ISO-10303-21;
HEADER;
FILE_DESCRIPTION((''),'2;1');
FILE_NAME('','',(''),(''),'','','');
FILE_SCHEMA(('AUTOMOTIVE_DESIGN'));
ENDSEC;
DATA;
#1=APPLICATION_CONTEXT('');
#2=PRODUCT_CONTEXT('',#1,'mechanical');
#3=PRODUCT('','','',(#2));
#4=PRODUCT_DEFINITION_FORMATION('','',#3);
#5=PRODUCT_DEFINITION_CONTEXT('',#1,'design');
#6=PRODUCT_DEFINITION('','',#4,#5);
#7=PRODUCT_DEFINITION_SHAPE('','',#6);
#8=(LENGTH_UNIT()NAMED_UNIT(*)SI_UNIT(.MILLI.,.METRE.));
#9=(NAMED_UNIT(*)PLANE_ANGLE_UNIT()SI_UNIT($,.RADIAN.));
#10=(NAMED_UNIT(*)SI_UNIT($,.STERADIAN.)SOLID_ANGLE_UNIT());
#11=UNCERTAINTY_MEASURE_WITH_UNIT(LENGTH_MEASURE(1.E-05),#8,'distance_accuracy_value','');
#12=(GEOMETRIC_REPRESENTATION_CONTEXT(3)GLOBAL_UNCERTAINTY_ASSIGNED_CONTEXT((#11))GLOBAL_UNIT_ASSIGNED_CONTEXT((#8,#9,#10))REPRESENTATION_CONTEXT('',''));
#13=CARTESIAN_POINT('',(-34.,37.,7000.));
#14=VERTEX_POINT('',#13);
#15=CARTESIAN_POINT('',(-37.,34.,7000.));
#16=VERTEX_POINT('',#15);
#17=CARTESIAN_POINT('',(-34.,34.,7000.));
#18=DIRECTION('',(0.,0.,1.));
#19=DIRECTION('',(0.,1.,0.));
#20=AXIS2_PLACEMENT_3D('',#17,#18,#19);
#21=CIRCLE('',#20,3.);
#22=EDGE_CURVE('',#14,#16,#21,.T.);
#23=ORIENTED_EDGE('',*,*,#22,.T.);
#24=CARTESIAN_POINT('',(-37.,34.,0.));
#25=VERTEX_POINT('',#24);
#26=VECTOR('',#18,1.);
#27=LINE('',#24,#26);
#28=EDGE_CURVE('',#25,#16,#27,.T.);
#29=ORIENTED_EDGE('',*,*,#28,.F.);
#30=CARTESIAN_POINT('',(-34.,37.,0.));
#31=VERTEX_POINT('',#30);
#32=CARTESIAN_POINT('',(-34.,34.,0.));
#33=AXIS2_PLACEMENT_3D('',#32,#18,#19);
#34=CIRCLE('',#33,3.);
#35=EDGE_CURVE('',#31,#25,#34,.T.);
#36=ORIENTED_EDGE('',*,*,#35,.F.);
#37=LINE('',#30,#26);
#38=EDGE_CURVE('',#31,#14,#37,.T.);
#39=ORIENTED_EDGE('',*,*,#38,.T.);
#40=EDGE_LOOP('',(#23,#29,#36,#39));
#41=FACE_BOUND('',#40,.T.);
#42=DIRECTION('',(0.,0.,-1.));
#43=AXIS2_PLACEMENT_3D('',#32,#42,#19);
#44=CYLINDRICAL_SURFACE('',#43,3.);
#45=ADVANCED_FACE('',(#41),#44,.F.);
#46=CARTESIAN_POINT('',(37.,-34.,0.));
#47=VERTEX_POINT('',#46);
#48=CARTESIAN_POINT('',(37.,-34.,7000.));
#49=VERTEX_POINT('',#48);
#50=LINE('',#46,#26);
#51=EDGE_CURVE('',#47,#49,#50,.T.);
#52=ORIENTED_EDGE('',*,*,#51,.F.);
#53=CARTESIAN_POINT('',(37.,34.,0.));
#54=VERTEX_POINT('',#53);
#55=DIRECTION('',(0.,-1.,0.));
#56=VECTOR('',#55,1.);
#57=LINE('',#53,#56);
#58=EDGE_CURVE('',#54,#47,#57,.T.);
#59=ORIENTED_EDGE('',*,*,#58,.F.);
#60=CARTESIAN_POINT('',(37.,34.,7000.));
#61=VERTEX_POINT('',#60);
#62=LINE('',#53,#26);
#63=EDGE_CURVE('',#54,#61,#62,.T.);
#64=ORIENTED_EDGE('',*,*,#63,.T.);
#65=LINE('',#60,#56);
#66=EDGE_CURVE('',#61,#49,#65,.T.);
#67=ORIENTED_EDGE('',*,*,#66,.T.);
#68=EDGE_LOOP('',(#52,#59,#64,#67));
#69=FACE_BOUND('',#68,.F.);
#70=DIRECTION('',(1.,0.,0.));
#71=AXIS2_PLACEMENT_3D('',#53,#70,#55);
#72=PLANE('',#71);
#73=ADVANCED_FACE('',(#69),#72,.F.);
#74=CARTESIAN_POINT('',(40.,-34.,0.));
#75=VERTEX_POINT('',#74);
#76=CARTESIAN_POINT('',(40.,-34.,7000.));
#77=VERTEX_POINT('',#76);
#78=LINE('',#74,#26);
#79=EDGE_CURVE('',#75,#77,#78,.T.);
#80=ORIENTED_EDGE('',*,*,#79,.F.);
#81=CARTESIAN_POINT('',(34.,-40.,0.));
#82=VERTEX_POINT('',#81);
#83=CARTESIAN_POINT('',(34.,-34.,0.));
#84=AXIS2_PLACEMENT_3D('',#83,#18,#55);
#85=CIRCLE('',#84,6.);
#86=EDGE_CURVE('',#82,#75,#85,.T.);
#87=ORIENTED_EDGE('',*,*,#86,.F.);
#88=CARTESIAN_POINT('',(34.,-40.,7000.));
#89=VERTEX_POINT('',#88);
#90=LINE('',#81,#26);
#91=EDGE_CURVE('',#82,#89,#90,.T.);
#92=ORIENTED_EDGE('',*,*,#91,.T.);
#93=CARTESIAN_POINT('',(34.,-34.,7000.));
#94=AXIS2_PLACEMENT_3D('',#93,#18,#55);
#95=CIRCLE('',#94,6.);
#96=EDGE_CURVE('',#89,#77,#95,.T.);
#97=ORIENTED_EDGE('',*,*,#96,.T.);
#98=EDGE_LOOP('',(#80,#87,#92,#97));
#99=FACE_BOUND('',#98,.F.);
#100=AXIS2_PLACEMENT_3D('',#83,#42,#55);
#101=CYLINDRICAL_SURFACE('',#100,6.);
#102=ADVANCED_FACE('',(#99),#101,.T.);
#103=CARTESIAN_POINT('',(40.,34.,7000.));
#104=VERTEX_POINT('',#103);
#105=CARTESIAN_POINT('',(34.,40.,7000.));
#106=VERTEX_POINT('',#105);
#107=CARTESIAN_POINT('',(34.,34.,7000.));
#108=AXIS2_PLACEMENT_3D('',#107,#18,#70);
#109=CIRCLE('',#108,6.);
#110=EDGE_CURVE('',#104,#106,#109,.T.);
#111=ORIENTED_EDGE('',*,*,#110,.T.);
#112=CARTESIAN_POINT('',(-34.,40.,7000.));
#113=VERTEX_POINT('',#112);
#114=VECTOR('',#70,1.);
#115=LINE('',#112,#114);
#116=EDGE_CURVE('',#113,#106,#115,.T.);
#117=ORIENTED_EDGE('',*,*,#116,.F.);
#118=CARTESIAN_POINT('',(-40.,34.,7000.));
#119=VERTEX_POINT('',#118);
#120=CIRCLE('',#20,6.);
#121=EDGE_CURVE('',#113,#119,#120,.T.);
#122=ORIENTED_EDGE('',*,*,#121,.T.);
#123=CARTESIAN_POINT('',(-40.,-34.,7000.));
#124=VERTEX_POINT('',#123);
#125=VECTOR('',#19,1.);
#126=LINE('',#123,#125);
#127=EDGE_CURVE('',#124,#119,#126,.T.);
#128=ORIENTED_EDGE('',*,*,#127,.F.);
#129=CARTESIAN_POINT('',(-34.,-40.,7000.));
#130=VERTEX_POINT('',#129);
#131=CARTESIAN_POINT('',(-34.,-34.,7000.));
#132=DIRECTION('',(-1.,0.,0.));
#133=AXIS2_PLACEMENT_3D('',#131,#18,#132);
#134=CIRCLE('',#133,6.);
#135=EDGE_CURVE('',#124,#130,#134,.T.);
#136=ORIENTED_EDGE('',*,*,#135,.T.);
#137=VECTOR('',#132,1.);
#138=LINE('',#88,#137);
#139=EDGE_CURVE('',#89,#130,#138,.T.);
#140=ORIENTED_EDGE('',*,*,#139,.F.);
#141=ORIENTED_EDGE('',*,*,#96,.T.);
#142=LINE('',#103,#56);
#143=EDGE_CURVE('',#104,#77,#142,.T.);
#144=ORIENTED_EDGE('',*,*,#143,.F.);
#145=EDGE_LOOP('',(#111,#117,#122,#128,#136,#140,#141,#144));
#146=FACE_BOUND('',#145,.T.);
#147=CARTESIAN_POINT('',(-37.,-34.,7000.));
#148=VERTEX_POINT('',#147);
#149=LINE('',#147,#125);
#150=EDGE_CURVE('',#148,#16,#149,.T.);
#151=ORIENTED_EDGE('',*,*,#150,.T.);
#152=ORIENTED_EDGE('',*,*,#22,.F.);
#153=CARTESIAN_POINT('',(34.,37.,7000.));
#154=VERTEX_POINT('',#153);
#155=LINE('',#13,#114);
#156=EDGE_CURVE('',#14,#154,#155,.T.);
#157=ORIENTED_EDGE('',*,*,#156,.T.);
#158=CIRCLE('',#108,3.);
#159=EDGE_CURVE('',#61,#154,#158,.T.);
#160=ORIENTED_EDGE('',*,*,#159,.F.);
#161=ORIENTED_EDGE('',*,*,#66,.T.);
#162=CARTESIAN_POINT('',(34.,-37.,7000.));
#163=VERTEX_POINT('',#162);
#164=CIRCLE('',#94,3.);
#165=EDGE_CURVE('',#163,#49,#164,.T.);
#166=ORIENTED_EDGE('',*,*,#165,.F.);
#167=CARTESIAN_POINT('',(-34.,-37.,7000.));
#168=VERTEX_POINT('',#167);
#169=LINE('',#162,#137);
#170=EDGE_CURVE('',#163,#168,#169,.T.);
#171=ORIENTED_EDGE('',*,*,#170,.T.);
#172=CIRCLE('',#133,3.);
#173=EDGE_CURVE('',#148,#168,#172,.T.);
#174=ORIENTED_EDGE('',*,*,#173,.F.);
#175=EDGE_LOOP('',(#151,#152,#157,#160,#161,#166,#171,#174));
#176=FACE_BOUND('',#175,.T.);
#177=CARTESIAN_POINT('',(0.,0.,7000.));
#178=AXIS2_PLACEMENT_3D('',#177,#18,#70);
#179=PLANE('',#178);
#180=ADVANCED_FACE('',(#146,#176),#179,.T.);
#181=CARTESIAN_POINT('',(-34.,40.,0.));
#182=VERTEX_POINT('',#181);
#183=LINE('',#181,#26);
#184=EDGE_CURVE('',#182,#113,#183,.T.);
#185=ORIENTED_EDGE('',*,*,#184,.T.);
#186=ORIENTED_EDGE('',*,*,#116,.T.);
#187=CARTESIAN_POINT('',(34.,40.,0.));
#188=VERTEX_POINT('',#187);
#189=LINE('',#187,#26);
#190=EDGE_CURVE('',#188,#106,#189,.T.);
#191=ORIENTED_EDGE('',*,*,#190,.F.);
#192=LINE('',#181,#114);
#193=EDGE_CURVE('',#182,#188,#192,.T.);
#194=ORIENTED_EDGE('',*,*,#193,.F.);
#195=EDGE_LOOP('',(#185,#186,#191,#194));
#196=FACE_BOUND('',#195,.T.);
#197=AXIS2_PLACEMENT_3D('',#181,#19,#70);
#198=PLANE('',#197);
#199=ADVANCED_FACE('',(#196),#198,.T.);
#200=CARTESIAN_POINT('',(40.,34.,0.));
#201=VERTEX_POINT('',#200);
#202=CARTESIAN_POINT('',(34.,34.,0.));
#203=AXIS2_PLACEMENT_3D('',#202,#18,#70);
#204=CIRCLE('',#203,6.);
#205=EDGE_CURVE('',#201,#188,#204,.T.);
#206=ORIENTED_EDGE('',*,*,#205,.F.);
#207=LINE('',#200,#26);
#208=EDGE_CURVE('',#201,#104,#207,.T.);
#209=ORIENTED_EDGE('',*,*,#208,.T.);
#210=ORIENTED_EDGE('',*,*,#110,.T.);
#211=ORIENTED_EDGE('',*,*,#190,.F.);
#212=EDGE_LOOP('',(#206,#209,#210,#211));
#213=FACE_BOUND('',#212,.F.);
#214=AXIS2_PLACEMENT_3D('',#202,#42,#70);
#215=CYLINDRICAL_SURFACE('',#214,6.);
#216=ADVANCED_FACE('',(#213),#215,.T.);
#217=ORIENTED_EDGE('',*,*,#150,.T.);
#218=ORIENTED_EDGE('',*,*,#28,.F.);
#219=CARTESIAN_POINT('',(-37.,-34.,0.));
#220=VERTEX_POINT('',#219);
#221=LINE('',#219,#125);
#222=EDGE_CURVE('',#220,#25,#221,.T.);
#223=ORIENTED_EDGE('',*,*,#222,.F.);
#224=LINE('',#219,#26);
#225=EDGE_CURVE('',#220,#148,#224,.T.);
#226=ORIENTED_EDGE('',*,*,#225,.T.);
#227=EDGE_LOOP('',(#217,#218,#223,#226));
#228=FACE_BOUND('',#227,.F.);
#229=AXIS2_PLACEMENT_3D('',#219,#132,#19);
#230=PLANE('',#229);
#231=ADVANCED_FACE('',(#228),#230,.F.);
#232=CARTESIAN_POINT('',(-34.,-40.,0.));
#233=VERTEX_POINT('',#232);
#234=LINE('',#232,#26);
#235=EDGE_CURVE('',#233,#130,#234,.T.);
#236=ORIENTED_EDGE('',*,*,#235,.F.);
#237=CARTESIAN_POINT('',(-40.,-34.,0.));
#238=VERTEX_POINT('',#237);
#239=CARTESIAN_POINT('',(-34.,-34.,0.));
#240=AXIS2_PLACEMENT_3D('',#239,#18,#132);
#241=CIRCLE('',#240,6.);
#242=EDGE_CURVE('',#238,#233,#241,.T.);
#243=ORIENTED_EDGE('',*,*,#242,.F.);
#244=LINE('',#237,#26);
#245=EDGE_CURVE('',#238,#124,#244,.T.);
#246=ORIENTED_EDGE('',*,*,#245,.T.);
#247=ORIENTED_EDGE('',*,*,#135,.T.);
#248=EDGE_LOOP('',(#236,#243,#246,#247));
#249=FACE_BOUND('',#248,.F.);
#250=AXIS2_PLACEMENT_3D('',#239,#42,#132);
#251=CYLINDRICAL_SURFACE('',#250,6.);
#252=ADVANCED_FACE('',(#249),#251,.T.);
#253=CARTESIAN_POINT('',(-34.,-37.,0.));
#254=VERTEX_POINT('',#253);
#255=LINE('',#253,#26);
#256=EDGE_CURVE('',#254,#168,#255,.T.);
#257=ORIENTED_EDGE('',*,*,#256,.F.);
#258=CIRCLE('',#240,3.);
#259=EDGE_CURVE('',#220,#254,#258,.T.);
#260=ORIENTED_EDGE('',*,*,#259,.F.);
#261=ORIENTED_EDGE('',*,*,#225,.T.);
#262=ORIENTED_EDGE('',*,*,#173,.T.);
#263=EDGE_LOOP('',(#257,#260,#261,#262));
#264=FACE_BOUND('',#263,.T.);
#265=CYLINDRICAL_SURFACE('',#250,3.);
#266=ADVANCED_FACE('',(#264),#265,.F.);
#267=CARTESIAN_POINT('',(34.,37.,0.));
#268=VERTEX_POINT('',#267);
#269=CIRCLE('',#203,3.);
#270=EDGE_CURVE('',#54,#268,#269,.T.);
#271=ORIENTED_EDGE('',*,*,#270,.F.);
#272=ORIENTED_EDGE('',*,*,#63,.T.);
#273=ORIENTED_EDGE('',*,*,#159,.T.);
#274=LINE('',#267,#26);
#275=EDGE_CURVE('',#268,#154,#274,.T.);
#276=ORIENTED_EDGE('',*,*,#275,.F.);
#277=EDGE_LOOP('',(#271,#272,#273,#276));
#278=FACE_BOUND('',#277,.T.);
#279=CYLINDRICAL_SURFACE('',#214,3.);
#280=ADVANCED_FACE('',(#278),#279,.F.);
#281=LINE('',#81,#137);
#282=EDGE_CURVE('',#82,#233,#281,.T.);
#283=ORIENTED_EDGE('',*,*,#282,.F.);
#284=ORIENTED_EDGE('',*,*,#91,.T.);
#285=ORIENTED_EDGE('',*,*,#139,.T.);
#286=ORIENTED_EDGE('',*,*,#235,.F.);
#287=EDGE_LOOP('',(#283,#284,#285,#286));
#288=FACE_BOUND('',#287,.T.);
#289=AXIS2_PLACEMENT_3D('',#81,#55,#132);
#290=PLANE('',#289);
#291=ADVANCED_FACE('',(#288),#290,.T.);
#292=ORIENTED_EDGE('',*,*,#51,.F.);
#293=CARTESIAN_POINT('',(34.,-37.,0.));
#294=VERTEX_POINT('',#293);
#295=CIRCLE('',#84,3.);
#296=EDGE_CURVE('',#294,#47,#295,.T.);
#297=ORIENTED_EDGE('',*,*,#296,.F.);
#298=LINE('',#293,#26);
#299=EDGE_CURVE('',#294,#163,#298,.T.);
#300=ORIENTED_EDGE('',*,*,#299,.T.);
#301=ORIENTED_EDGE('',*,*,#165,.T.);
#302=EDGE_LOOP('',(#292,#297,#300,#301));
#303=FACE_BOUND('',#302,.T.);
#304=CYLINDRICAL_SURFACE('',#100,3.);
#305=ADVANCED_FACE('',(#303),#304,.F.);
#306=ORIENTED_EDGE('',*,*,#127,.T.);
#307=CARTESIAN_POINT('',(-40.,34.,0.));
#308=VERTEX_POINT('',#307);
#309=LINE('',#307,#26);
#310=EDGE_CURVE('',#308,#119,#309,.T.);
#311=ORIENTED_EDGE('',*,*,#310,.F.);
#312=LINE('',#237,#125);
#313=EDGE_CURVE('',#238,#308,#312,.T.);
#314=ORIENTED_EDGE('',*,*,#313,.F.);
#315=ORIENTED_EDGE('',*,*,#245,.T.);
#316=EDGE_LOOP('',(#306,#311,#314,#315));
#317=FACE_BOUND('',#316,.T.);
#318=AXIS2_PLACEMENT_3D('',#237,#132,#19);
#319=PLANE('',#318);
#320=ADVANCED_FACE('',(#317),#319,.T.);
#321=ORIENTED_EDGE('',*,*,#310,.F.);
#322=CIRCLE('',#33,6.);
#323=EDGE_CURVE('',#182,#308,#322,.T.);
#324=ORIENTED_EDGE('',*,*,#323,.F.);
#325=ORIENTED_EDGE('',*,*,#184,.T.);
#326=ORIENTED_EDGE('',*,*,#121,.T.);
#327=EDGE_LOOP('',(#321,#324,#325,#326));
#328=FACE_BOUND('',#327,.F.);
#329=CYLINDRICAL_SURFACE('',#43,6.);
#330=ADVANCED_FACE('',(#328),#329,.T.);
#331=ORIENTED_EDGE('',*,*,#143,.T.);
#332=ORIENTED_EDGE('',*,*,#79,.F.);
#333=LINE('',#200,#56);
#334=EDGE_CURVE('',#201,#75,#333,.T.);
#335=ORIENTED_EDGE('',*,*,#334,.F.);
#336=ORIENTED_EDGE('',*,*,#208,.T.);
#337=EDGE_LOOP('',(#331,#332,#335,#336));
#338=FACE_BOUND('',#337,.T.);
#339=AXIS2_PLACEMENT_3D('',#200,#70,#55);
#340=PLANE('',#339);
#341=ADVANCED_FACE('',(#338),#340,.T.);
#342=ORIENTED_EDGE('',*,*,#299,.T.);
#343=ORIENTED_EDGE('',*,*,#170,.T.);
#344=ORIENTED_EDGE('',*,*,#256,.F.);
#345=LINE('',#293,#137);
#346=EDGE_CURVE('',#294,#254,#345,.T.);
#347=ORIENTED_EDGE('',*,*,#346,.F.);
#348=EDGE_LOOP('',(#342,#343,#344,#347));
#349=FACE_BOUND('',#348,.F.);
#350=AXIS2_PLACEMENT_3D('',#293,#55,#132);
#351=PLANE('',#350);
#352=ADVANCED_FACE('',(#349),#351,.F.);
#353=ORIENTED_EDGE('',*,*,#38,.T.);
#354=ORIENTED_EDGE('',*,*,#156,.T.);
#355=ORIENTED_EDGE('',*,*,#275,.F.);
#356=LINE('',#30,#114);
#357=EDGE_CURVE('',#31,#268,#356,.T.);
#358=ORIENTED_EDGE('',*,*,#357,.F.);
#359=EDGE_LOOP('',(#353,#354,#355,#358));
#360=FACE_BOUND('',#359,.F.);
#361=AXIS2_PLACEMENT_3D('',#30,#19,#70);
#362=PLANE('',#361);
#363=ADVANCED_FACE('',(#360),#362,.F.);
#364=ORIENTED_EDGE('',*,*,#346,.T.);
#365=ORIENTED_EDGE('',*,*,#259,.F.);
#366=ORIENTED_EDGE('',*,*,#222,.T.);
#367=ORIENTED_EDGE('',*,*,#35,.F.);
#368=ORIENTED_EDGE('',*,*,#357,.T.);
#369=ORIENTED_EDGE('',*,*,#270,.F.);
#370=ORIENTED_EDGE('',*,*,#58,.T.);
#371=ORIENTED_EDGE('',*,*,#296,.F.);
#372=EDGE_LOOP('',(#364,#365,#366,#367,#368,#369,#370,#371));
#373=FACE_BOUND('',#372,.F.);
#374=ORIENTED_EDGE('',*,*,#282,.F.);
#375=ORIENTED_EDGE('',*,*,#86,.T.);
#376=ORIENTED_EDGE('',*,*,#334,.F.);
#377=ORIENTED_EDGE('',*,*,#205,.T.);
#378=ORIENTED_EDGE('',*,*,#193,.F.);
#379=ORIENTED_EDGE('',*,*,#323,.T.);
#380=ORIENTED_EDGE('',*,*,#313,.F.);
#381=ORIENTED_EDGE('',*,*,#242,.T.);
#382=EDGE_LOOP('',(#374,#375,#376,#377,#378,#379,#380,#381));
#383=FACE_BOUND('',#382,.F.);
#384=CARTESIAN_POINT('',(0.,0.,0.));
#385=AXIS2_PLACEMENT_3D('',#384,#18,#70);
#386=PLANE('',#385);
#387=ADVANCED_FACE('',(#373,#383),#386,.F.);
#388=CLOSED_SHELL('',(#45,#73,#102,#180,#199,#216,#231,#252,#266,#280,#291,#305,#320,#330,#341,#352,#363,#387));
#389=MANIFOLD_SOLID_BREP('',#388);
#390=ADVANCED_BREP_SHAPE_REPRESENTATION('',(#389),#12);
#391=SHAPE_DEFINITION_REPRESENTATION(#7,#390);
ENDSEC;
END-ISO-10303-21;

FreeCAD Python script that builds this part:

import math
import FreeCAD as App
import Part
import Sketcher
from FreeCAD import Vector

doc = App.newDocument("Part")
body = doc.addObject("PartDesign::Body", "Body")

sketch1 = body.newObject("Sketcher::SketchObject", "Sketch")
sketch1.AttachmentSupport = (doc.getObject("XY_Plane"), [""])
sketch1.MapMode = "FlatFace"
sketch1.addGeometry(Part.LineSegment(Vector(-40, 34, 0), Vector(-40, -34, 0)), False)
sketch1.addGeometry(Part.ArcOfCircle(Part.Circle(Vector(-34, -34, 0), Vector(0, 0, 1), 6), math.radians(180), math.radians(270)), False)
sketch1.addGeometry(Part.LineSegment(Vector(-34, -40, 0), Vector(34, -40, 0)), False)
sketch1.addGeometry(Part.ArcOfCircle(Part.Circle(Vector(34, -34, 0), Vector(0, 0, 1), 6), math.radians(-90), math.radians(0)), False)
sketch1.addGeometry(Part.LineSegment(Vector(40, -34, 0), Vector(40, 34, 0)), False)
sketch1.addGeometry(Part.ArcOfCircle(Part.Circle(Vector(34, 34, 0), Vector(0, 0, 1), 6), math.radians(0), math.radians(90)), False)
sketch1.addGeometry(Part.LineSegment(Vector(34, 40, 0), Vector(-34, 40, 0)), False)
sketch1.addGeometry(Part.ArcOfCircle(Part.Circle(Vector(-34, 34, 0), Vector(0, 0, 1), 6), math.radians(90), math.radians(180)), False)
sketch1.addGeometry(Part.ArcOfCircle(Part.Circle(Vector(-34, 34, 0), Vector(0, 0, 1), 3), math.radians(90), math.radians(180)), False)
sketch1.addGeometry(Part.LineSegment(Vector(-34, 37, 0), Vector(34, 37, 0)), False)
sketch1.addGeometry(Part.ArcOfCircle(Part.Circle(Vector(34, 34, 0), Vector(0, 0, 1), 3), math.radians(0), math.radians(90)), False)
sketch1.addGeometry(Part.LineSegment(Vector(37, 34, 0), Vector(37, -34, 0)), False)
sketch1.addGeometry(Part.ArcOfCircle(Part.Circle(Vector(34, -34, 0), Vector(0, 0, 1), 3), math.radians(-90), math.radians(0)), False)
sketch1.addGeometry(Part.LineSegment(Vector(34, -37, 0), Vector(-34, -37, 0)), False)
sketch1.addGeometry(Part.ArcOfCircle(Part.Circle(Vector(-34, -34, 0), Vector(0, 0, 1), 3), math.radians(180), math.radians(270)), False)
sketch1.addGeometry(Part.LineSegment(Vector(-37, -34, 0), Vector(-37, 34, 0)), False)
sketch1.addConstraint(Sketcher.Constraint("Tangent", 0, 2, 1, 1))
sketch1.addConstraint(Sketcher.Constraint("Tangent", 1, 2, 2, 1))
sketch1.addConstraint(Sketcher.Constraint("Tangent", 2, 2, 3, 1))
sketch1.addConstraint(Sketcher.Constraint("Tangent", 3, 2, 4, 1))
sketch1.addConstraint(Sketcher.Constraint("Tangent", 4, 2, 5, 1))
sketch1.addConstraint(Sketcher.Constraint("Tangent", 5, 2, 6, 1))
sketch1.addConstraint(Sketcher.Constraint("Tangent", 6, 2, 7, 1))
sketch1.addConstraint(Sketcher.Constraint("Tangent", 7, 2, 0, 1))
sketch1.addConstraint(Sketcher.Constraint("Tangent", 8, 1, 9, 1))
sketch1.addConstraint(Sketcher.Constraint("Tangent", 9, 2, 10, 2))
sketch1.addConstraint(Sketcher.Constraint("Tangent", 10, 1, 11, 1))
sketch1.addConstraint(Sketcher.Constraint("Tangent", 11, 2, 12, 2))
sketch1.addConstraint(Sketcher.Constraint("Tangent", 12, 1, 13, 1))
sketch1.addConstraint(Sketcher.Constraint("Tangent", 13, 2, 14, 2))
sketch1.addConstraint(Sketcher.Constraint("Tangent", 14, 1, 15, 1))
sketch1.addConstraint(Sketcher.Constraint("Tangent", 15, 2, 8, 2))
sketch1.addConstraint(Sketcher.Constraint("Vertical", 0))
sketch1.addConstraint(Sketcher.Constraint("Horizontal", 2))
sketch1.addConstraint(Sketcher.Constraint("Vertical", 4))
sketch1.addConstraint(Sketcher.Constraint("Horizontal", 6))
sketch1.addConstraint(Sketcher.Constraint("Horizontal", 9))
sketch1.addConstraint(Sketcher.Constraint("Vertical", 11))
sketch1.addConstraint(Sketcher.Constraint("Horizontal", 13))
sketch1.addConstraint(Sketcher.Constraint("Vertical", 15))
sketch1.addConstraint(Sketcher.Constraint("Coincident", 8, 3, 7, 3))
sketch1.addConstraint(Sketcher.Constraint("Coincident", 10, 3, 5, 3))
sketch1.addConstraint(Sketcher.Constraint("Coincident", 12, 3, 3, 3))
sketch1.addConstraint(Sketcher.Constraint("Equal", 1, 3))
sketch1.addConstraint(Sketcher.Constraint("Equal", 3, 5))
sketch1.addConstraint(Sketcher.Constraint("Equal", 5, 7))
sketch1.addConstraint(Sketcher.Constraint("Equal", 12, 14))
sketch1.addConstraint(Sketcher.Constraint("Symmetric", 1, 3, 5, 3, -1, 1))
sketch1.addConstraint(Sketcher.Constraint("Equal", 13, 0))
sketch1.addConstraint(Sketcher.Constraint("Radius", 1, 6.0))
sketch1.addConstraint(Sketcher.Constraint("Radius", 8, 3.0))
sketch1.addConstraint(Sketcher.Constraint("DistanceX", 0, 2, -1, 1, 40.0))
pad1 = body.newObject("PartDesign::Pad", "Pad")
pad1.Profile = sketch1
pad1.Length = 7000

doc.recompute()
